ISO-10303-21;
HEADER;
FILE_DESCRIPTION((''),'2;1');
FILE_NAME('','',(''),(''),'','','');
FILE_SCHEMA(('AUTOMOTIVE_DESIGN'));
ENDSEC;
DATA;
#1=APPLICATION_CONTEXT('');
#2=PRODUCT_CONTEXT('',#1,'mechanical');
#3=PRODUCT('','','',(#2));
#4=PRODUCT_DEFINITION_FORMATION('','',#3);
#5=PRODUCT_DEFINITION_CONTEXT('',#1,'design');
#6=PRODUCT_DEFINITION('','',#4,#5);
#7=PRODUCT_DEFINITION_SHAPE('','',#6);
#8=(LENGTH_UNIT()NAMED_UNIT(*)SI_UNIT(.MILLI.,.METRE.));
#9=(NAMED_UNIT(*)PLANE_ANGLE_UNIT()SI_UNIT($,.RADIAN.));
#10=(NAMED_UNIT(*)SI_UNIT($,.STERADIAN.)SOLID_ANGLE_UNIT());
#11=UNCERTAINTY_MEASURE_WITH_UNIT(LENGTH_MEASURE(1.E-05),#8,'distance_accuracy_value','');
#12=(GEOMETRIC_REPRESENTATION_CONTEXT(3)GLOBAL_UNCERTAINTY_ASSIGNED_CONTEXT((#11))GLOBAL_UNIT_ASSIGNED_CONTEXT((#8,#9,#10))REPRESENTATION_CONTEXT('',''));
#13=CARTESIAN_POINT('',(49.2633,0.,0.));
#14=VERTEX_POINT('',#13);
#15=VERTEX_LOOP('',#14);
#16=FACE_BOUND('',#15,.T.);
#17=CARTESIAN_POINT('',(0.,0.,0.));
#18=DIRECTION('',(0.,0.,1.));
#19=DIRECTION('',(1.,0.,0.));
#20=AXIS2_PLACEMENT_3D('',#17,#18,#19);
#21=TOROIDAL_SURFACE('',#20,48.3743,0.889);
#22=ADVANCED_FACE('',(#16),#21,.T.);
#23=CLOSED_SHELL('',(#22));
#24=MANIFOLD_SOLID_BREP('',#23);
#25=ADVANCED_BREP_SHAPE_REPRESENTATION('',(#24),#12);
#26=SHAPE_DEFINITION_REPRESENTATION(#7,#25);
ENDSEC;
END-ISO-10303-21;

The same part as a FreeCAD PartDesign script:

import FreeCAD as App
import Part
import Sketcher
Q = App.Units.Quantity

doc = App.newDocument("Part")
body = doc.addObject("PartDesign::Body", "Body")

# Sketch on YZ plane
sketch1 = body.newObject("Sketcher::SketchObject", "Sketch")
sketch1.AttachmentSupport = (doc.getObject("YZ_Plane"), [""])
sketch1.MapMode = "FlatFace"
sketch1.addGeometry(Part.Circle(App.Vector(-48.4, 0, 0), App.Vector(0, 0, 1), 0.9), False)
sketch1.addConstraint([
    Sketcher.Constraint("PointOnObject", 0, 3, -1),
    Sketcher.Constraint("Diameter", 0, Q("0.07 in")),
    Sketcher.Constraint("DistanceX", 0, 3, -1, 1, Q("1.9045 in")),
])
revolution = body.newObject("PartDesign::Revolution", "Revolution")
revolution.Profile = sketch1
revolution.ReferenceAxis = (sketch1, ["V_Axis"])
revolution.Angle = 360

doc.recompute()
